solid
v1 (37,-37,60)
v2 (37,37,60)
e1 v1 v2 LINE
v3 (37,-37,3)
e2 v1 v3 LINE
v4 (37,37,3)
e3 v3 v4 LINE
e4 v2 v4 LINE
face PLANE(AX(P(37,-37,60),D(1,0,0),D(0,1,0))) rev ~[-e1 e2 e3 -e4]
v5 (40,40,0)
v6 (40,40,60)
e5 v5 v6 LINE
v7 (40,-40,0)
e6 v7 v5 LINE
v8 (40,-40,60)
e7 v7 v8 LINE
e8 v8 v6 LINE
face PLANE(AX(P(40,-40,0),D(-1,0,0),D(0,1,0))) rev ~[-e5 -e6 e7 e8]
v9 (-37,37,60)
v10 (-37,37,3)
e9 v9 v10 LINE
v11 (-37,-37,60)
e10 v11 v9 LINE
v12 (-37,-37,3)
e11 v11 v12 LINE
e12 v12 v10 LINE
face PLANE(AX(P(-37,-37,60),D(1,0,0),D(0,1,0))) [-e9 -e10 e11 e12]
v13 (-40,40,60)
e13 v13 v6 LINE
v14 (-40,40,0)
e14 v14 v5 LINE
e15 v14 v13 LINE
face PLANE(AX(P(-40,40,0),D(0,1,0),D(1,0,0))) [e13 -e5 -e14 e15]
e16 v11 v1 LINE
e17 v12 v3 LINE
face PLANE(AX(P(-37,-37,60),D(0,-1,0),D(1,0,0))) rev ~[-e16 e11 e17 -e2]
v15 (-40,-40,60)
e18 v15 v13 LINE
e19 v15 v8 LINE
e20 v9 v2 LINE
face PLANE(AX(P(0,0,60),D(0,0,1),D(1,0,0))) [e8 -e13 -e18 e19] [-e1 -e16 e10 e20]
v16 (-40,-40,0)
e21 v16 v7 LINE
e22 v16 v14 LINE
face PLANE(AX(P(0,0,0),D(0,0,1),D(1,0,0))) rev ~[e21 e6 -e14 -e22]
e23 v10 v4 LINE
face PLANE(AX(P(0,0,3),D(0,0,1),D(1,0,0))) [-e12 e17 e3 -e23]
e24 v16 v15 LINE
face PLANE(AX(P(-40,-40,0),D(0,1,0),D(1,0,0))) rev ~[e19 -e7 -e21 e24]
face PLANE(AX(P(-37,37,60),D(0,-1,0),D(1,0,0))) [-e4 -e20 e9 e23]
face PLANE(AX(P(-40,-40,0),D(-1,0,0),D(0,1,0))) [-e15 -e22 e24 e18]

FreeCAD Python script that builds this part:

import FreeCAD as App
import Part
import Sketcher

V = App.Vector
Q = App.Units.Quantity

doc = App.newDocument("Part")
body = doc.addObject("PartDesign::Body", "Body")

# Sketch on XY plane
sketch1 = body.newObject("Sketcher::SketchObject", "Sketch")
sketch1.AttachmentSupport = (doc.getObject("XY_Plane"), [""])
sketch1.MapMode = "FlatFace"
sketch1.addGeometry([
    Part.LineSegment(V(-40, 40, 0), V(-40, -40, 0)),
    Part.LineSegment(V(-40, -40, 0), V(40, -40, 0)),
    Part.LineSegment(V(40, -40, 0), V(40, 40, 0)),
    Part.LineSegment(V(40, 40, 0), V(-40, 40, 0)),
], False)
sketch1.addConstraint([
    Sketcher.Constraint("Coincident", 0, 2, 1, 1),
    Sketcher.Constraint("Coincident", 1, 2, 2, 1),
    Sketcher.Constraint("Coincident", 2, 2, 3, 1),
    Sketcher.Constraint("Coincident", 3, 2, 0, 1),
    Sketcher.Constraint("Vertical", 0),
    Sketcher.Constraint("Horizontal", 1),
    Sketcher.Constraint("Vertical", 2),
    Sketcher.Constraint("Horizontal", 3),
    Sketcher.Constraint("Symmetric", 0, 2, 2, 2, -1, 1),
    Sketcher.Constraint("Equal", 3, 0),
    Sketcher.Constraint("DistanceX", 1, 1, 1, 2, Q("80 mm")),
])
pad1 = body.newObject("PartDesign::Pad", "Pad")
pad1.Profile = sketch1
pad1.Length = 60

# Sketch on XY plane
sketch2 = body.newObject("Sketcher::SketchObject", "Sketch001")
sketch2.AttachmentSupport = (doc.getObject("XY_Plane"), [""])
sketch2.MapMode = "FlatFace"
sketch2.AttachmentOffset = App.Placement(V(0, 0, 60), App.Rotation())
sketch2.addGeometry([
    Part.LineSegment(V(-37, 37, 0), V(-37, -37, 0)),
    Part.LineSegment(V(-37, -37, 0), V(37, -37, 0)),
    Part.LineSegment(V(37, -37, 0), V(37, 37, 0)),
    Part.LineSegment(V(37, 37, 0), V(-37, 37, 0)),
], False)
sketch2.addConstraint([
    Sketcher.Constraint("Coincident", 0, 2, 1, 1),
    Sketcher.Constraint("Coincident", 1, 2, 2, 1),
    Sketcher.Constraint("Coincident", 2, 2, 3, 1),
    Sketcher.Constraint("Coincident", 3, 2, 0, 1),
    Sketcher.Constraint("Vertical", 0),
    Sketcher.Constraint("Horizontal", 1),
    Sketcher.Constraint("Vertical", 2),
    Sketcher.Constraint("Horizontal", 3),
    Sketcher.Constraint("Symmetric", 0, 2, 2, 2, -1, 1),
    Sketcher.Constraint("Equal", 3, 0),
    Sketcher.Constraint("DistanceX", 1, 1, 1, 2, Q("74 mm")),
])
pocket1 = body.newObject("PartDesign::Pocket", "Pocket")
pocket1.Profile = sketch2
pocket1.Length = 57

doc.recompute()
